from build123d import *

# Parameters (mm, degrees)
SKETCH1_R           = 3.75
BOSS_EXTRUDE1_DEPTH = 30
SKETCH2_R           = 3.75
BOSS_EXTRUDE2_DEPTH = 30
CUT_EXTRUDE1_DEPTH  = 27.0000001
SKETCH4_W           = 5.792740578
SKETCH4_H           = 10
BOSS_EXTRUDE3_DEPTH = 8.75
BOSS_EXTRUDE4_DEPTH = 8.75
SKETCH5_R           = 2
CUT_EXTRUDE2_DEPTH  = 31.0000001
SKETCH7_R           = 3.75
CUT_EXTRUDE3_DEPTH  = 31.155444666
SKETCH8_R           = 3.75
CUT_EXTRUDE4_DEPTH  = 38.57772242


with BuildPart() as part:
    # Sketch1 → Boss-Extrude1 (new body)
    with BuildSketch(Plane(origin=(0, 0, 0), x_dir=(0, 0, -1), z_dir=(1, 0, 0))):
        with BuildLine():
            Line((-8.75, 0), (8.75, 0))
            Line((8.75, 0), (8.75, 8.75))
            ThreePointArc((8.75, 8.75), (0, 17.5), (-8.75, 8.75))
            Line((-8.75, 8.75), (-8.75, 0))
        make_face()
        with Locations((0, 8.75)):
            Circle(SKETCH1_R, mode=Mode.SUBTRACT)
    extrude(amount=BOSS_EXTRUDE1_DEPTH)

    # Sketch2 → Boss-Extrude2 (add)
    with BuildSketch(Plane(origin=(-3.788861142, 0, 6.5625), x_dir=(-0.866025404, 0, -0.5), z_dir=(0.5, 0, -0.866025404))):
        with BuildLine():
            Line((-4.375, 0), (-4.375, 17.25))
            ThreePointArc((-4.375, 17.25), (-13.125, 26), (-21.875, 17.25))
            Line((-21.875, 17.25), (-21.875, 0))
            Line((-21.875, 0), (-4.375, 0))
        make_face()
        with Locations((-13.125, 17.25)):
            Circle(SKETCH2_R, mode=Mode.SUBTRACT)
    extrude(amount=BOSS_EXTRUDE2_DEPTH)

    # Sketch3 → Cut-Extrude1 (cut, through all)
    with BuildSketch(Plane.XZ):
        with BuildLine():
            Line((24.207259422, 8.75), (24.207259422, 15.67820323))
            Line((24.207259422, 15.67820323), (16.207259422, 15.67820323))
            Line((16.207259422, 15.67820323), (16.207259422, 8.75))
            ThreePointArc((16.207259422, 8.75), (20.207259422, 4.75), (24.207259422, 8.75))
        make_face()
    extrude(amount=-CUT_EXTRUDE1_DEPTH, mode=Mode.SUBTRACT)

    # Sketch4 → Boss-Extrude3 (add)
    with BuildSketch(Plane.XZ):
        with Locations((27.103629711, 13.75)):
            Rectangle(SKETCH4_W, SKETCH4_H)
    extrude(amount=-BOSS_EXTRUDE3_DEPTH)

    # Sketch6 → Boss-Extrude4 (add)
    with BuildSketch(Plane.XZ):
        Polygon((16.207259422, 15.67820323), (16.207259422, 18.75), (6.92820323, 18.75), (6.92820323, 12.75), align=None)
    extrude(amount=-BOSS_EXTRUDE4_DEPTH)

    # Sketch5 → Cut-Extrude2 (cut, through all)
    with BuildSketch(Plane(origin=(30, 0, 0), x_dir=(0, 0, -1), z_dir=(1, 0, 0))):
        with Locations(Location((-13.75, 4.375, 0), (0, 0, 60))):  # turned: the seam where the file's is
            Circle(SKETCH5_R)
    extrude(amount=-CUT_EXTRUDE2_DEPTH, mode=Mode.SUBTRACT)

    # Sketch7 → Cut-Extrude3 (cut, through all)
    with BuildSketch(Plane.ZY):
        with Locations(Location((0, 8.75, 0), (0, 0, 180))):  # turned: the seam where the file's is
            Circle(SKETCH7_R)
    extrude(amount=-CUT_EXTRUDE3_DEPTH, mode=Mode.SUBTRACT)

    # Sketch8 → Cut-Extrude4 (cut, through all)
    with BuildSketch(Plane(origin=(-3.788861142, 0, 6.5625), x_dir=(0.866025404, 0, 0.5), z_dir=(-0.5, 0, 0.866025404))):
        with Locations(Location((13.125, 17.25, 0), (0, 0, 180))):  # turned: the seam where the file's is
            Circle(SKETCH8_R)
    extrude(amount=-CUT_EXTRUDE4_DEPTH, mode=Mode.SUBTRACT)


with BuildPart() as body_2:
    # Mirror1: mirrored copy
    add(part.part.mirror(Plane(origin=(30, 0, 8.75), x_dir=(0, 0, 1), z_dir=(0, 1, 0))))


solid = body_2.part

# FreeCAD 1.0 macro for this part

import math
import FreeCAD as App
import Part
import Sketcher
Q = App.Units.Quantity

doc = App.newDocument("Part")
params = doc.addObject("Spreadsheet::Sheet", "Params")
for row, (alias, value) in enumerate([
    ("sketch1_diameter", "7.5 mm"),
    ("sketch1_radius", "8.75 mm"),
    ("sketch1_width", "8.75 mm"),
    ("pad1_length", "30 mm"),
    ("sketch2_diameter", "7.5 mm"),
    ("sketch2_radius", "8.75 mm"),
    ("sketch2_height", "17.25 mm"),
    ("pad2_length", "30 mm"),
    ("sketch3_radius", "4 mm"),
    ("sketch4_height", "10 mm"),
    ("pad3_length", "8.75 mm"),
    ("sketch5_height", "6 mm"),
    ("pad4_length", "8.75 mm"),
    ("sketch6_diameter", "4 mm"),
    ("sketch7_diameter", "7.5 mm"),
    ("sketch8_diameter", "7.5 mm"),
], start=1):
    params.set(f"A{row}", alias)
    params.set(f"B{row}", "=" + value)
    params.setAlias(f"B{row}", alias)

body = doc.addObject("PartDesign::Body", "Body")

sketch1 = body.newObject("Sketcher::SketchObject", "Sketch")
sketch1.AttachmentSupport = (doc.getObject("YZ_Plane"), [""])
sketch1.MapMode = "FlatFace"
sketch1.addGeometry(Part.LineSegment(App.Vector(0, 8.75, 0), App.Vector(0, -8.75, 0)), False)
sketch1.addGeometry(Part.LineSegment(App.Vector(0, -8.75, 0), App.Vector(8.75, -8.75, 0)), False)
sketch1.addGeometry(Part.ArcOfCircle(Part.Circle(App.Vector(8.75, 0, 0), App.Vector(0, 0, 1), 8.75), math.radians(-90), math.radians(90)), False)
sketch1.addGeometry(Part.LineSegment(App.Vector(8.75, 8.75, 0), App.Vector(0, 8.75, 0)), False)
sketch1.addGeometry(Part.Circle(App.Vector(8.75, 0, 0), App.Vector(0, 0, 1), 3.75), False)
sketch1.addConstraint(Sketcher.Constraint("Coincident", 0, 2, 1, 1))
sketch1.addConstraint(Sketcher.Constraint("Tangent", 1, 2, 2, 1))
sketch1.addConstraint(Sketcher.Constraint("Tangent", 2, 2, 3, 1))
sketch1.addConstraint(Sketcher.Constraint("Coincident", 3, 2, 0, 1))
sketch1.addConstraint(Sketcher.Constraint("Vertical", 0))
sketch1.addConstraint(Sketcher.Constraint("Horizontal", 1))
sketch1.addConstraint(Sketcher.Constraint("Horizontal", 3))
sketch1.addConstraint(Sketcher.Constraint("Coincident", 4, 3, 2, 3))
sketch1.addConstraint(Sketcher.Constraint("Symmetric", 0, 2, 3, 2, -1, 1))
sketch1.addConstraint(Sketcher.Constraint("Diameter", 4, Q("7.5 mm")))
sketch1.addConstraint(Sketcher.Constraint("Radius", 2, Q("8.75 mm")))
sketch1.addConstraint(Sketcher.Constraint("DistanceX", 1, 1, 1, 2, Q("8.75 mm")))
sketch1.setExpression("Constraints[9]", "Params.sketch1_diameter")
sketch1.setExpression("Constraints[10]", "Params.sketch1_radius")
sketch1.setExpression("Constraints[11]", "Params.sketch1_width")
pad1 = body.newObject("PartDesign::Pad", "Pad")
pad1.Profile = sketch1
pad1.setExpression("Length", "Params.pad1_length")

sketch2 = body.newObject("Sketcher::SketchObject", "Sketch001")
sketch2.Placement = App.Placement(App.Vector(-3.788861, 0, 6.5625), App.Rotation(App.Vector(-0.866025404, 0, -0.5), App.Vector(0, 1, 0), App.Vector(0.5, 0, -0.866025404), "ZXY"))
sketch2.addGeometry(Part.LineSegment(App.Vector(-4.375, 0, 0), App.Vector(-4.375, 17.25, 0)), False)
sketch2.addGeometry(Part.ArcOfCircle(Part.Circle(App.Vector(-13.125, 17.25, 0), App.Vector(0, 0, 1), 8.75), math.radians(0), math.radians(180)), False)
sketch2.addGeometry(Part.LineSegment(App.Vector(-21.875, 17.25, 0), App.Vector(-21.875, 0, 0)), False)
sketch2.addGeometry(Part.LineSegment(App.Vector(-21.875, 0, 0), App.Vector(-4.375, 0, 0)), False)
sketch2.addGeometry(Part.Circle(App.Vector(-13.125, 17.25, 0), App.Vector(0, 0, 1), 3.75), False)
sketch2.addConstraint(Sketcher.Constraint("Tangent", 0, 2, 1, 1))
sketch2.addConstraint(Sketcher.Constraint("Tangent", 1, 2, 2, 1))
sketch2.addConstraint(Sketcher.Constraint("Coincident", 2, 2, 3, 1))
sketch2.addConstraint(Sketcher.Constraint("Coincident", 3, 2, 0, 1))
sketch2.addConstraint(Sketcher.Constraint("Vertical", 0))
sketch2.addConstraint(Sketcher.Constraint("Vertical", 2))
sketch2.addConstraint(Sketcher.Constraint("Horizontal", 3))
sketch2.addConstraint(Sketcher.Constraint("Coincident", 4, 3, 1, 3))
sketch2.addConstraint(Sketcher.Constraint("PointOnObject", 2, 2, -1))
sketch2.addConstraint(Sketcher.Constraint("Diameter", 4, Q("7.5 mm")))
sketch2.addConstraint(Sketcher.Constraint("Radius", 1, Q("8.75 mm")))
sketch2.addConstraint(Sketcher.Constraint("DistanceY", 0, 1, 0, 2, Q("17.25 mm")))
sketch2.addConstraint(Sketcher.Constraint("DistanceX", 1, 3, -1, 1, Q("13.125 mm")))
sketch2.setExpression("Constraints[9]", "Params.sketch2_diameter")
sketch2.setExpression("Constraints[10]", "Params.sketch2_radius")
sketch2.setExpression("Constraints[11]", "Params.sketch2_height")
pad2 = body.newObject("PartDesign::Pad", "Pad001")
pad2.Profile = sketch2
pad2.setExpression("Length", "Params.pad2_length")

sketch3 = body.newObject("Sketcher::SketchObject", "Sketch002")
sketch3.AttachmentSupport = (doc.getObject("XZ_Plane"), [""])
sketch3.MapMode = "FlatFace"
sketch3.addGeometry(Part.LineSegment(App.Vector(24.207259, 8.75, 0), App.Vector(24.207259, 15.678203, 0)), False)
sketch3.addGeometry(Part.LineSegment(App.Vector(24.207259, 15.678203, 0), App.Vector(16.207259, 15.678203, 0)), False)
sketch3.addGeometry(Part.LineSegment(App.Vector(16.207259, 15.678203, 0), App.Vector(16.207259, 8.75, 0)), False)
sketch3.addGeometry(Part.ArcOfCircle(Part.Circle(App.Vector(20.207259, 8.75, 0), App.Vector(0, 0, 1), 4), math.radians(180), math.radians(360)), False)
sketch3.addConstraint(Sketcher.Constraint("Coincident", 0, 2, 1, 1))
sketch3.addConstraint(Sketcher.Constraint("Coincident", 1, 2, 2, 1))
sketch3.addConstraint(Sketcher.Constraint("Tangent", 2, 2, 3, 1))
sketch3.addConstraint(Sketcher.Constraint("Tangent", 3, 2, 0, 1))
sketch3.addConstraint(Sketcher.Constraint("Vertical", 0))
sketch3.addConstraint(Sketcher.Constraint("Horizontal", 1))
sketch3.addConstraint(Sketcher.Constraint("Vertical", 2))
sketch3.addConstraint(Sketcher.Constraint("Radius", 3, Q("4 mm")))
sketch3.addConstraint(Sketcher.Constraint("DistanceY", -1, 1, 3, 3, Q("8.75 mm")))
sketch3.addConstraint(Sketcher.Constraint("DistanceY", 0, 1, 0, 2, Q("6.928203 mm")))
sketch3.addConstraint(Sketcher.Constraint("DistanceX", -1, 1, 3, 3, Q("20.207259 mm")))
sketch3.setExpression("Constraints[7]", "Params.sketch3_radius")
pocket1 = body.newObject("PartDesign::Pocket", "Pocket")
pocket1.Profile = sketch3
pocket1.Type = "ThroughAll"

sketch4 = body.newObject("Sketcher::SketchObject", "Sketch003")
sketch4.AttachmentSupport = (doc.getObject("XZ_Plane"), [""])
sketch4.MapMode = "FlatFace"
sketch4.addGeometry(Part.LineSegment(App.Vector(24.207259, 18.75, 0), App.Vector(24.207259, 8.75, 0)), False)
sketch4.addGeometry(Part.LineSegment(App.Vector(24.207259, 8.75, 0), App.Vector(30, 8.75, 0)), False)
sketch4.addGeometry(Part.LineSegment(App.Vector(30, 8.75, 0), App.Vector(30, 18.75, 0)), False)
sketch4.addGeometry(Part.LineSegment(App.Vector(30, 18.75, 0), App.Vector(24.207259, 18.75, 0)), False)
sketch4.addConstraint(Sketcher.Constraint("Coincident", 0, 2, 1, 1))
sketch4.addConstraint(Sketcher.Constraint("Coincident", 1, 2, 2, 1))
sketch4.addConstraint(Sketcher.Constraint("Coincident", 2, 2, 3, 1))
sketch4.addConstraint(Sketcher.Constraint("Coincident", 3, 2, 0, 1))
sketch4.addConstraint(Sketcher.Constraint("Vertical", 0))
sketch4.addConstraint(Sketcher.Constraint("Horizontal", 1))
sketch4.addConstraint(Sketcher.Constraint("Vertical", 2))
sketch4.addConstraint(Sketcher.Constraint("Horizontal", 3))
sketch4.addConstraint(Sketcher.Constraint("DistanceY", 0, 2, 0, 1, Q("10 mm")))
sketch4.addConstraint(Sketcher.Constraint("DistanceX", -1, 1, 1, 2, Q("30 mm")))
sketch4.addConstraint(Sketcher.Constraint("DistanceY", -1, 1, 0, 2, Q("8.75 mm")))
sketch4.addConstraint(Sketcher.Constraint("DistanceX", 1, 1, 1, 2, Q("5.792741 mm")))
sketch4.setExpression("Constraints[8]", "Params.sketch4_height")
pad3 = body.newObject("PartDesign::Pad", "Pad002")
pad3.Profile = sketch4
pad3.setExpression("Length", "Params.pad3_length")
pad3.Reversed = True

sketch5 = body.newObject("Sketcher::SketchObject", "Sketch004")
sketch5.AttachmentSupport = (doc.getObject("XZ_Plane"), [""])
sketch5.MapMode = "FlatFace"
sketch5.addGeometry(Part.LineSegment(App.Vector(16.207259, 15.678203, 0), App.Vector(16.207259, 18.75, 0)), False)
sketch5.addGeometry(Part.LineSegment(App.Vector(16.207259, 18.75, 0), App.Vector(6.928203, 18.75, 0)), False)
sketch5.addGeometry(Part.LineSegment(App.Vector(6.928203, 18.75, 0), App.Vector(6.928203, 12.75, 0)), False)
sketch5.addGeometry(Part.LineSegment(App.Vector(6.928203, 12.75, 0), App.Vector(16.207259, 15.678203, 0)), False)
sketch5.addConstraint(Sketcher.Constraint("Coincident", 0, 2, 1, 1))
sketch5.addConstraint(Sketcher.Constraint("Coincident", 1, 2, 2, 1))
sketch5.addConstraint(Sketcher.Constraint("Coincident", 2, 2, 3, 1))
sketch5.addConstraint(Sketcher.Constraint("Coincident", 3, 2, 0, 1))
sketch5.addConstraint(Sketcher.Constraint("Vertical", 0))
sketch5.addConstraint(Sketcher.Constraint("Horizontal", 1))
sketch5.addConstraint(Sketcher.Constraint("Vertical", 2))
sketch5.addConstraint(Sketcher.Constraint("DistanceY", 2, 2, 2, 1, Q("6 mm")))
sketch5.addConstraint(Sketcher.Constraint("DistanceY", -1, 1, 0, 2, Q("18.75 mm")))
sketch5.addConstraint(Sketcher.Constraint("Distance", 3, Q("9.730121 mm")))
sketch5.addConstraint(Sketcher.Constraint("DistanceX", 1, 2, 1, 1, Q("9.279056 mm")))
sketch5.addConstraint(Sketcher.Constraint("DistanceX", -1, 1, 0, 2, Q("16.207259 mm")))
sketch5.setExpression("Constraints[7]", "Params.sketch5_height")
pad4 = body.newObject("PartDesign::Pad", "Pad003")
pad4.Profile = sketch5
pad4.setExpression("Length", "Params.pad4_length")
pad4.Reversed = True

sketch6 = body.newObject("Sketcher::SketchObject", "Sketch005")
sketch6.AttachmentSupport = (doc.getObject("YZ_Plane"), [""])
sketch6.MapMode = "FlatFace"
sketch6.AttachmentOffset = App.Placement(App.Vector(0, 0, 30), App.Rotation())
sketch6.addGeometry(Part.Circle(App.Vector(4.375, 13.75, 0), App.Vector(0, 0, 1), 2), False)
sketch6.addConstraint(Sketcher.Constraint("Diameter", 0, Q("4 mm")))
sketch6.addConstraint(Sketcher.Constraint("DistanceY", -1, 1, 0, 3, Q("13.75 mm")))
sketch6.addConstraint(Sketcher.Constraint("DistanceX", -1, 1, 0, 3, Q("4.375 mm")))
sketch6.setExpression("Constraints[0]", "Params.sketch6_diameter")
pocket2 = body.newObject("PartDesign::Pocket", "Pocket001")
pocket2.Profile = sketch6
pocket2.Type = "ThroughAll"

sketch7 = body.newObject("Sketcher::SketchObject", "Sketch006")
sketch7.AttachmentSupport = (doc.getObject("YZ_Plane"), [""])
sketch7.MapMode = "FlatFace"
sketch7.addGeometry(Part.Circle(App.Vector(8.75, 0, 0), App.Vector(0, 0, 1), 3.75), False)
sketch7.addConstraint(Sketcher.Constraint("PointOnObject", 0, 3, -1))
sketch7.addConstraint(Sketcher.Constraint("Diameter", 0, Q("7.5 mm")))
sketch7.addConstraint(Sketcher.Constraint("DistanceX", -1, 1, 0, 3, Q("8.75 mm")))
sketch7.setExpression("Constraints[1]", "Params.sketch7_diameter")
pocket3 = body.newObject("PartDesign::Pocket", "Pocket002")
pocket3.Profile = sketch7
pocket3.Type = "ThroughAll"
pocket3.Reversed = True

sketch8 = body.newObject("Sketcher::SketchObject", "Sketch007")
sketch8.Placement = App.Placement(App.Vector(-3.788861, 0, 6.5625), App.Rotation(App.Vector(0.866025404, 0, 0.5), App.Vector(0, 1, 0), App.Vector(-0.5, 0, 0.866025404), "ZXY"))
sketch8.addGeometry(Part.Circle(App.Vector(13.125, 17.25, 0), App.Vector(0, 0, 1), 3.75), False)
sketch8.addConstraint(Sketcher.Constraint("Diameter", 0, Q("7.5 mm")))
sketch8.addConstraint(Sketcher.Constraint("DistanceY", -1, 1, 0, 3, Q("17.25 mm")))
sketch8.addConstraint(Sketcher.Constraint("DistanceX", -1, 1, 0, 3, Q("13.125 mm")))
sketch8.setExpression("Constraints[0]", "Params.sketch8_diameter")
pocket4 = body.newObject("PartDesign::Pocket", "Pocket003")
pocket4.Profile = sketch8
pocket4.Type = "ThroughAll"
body2 = doc.addObject("PartDesign::Body", "Body001")
doc.recompute()

mirroring = doc.addObject("Part::Mirroring", "Mirroring")
mirroring.Source = body
mirroring.Base = App.Vector(30, 0, 8.75)
mirroring.Normal = App.Vector(0, 1, 0)
body2.BaseFeature = mirroring
doc.recompute()
body.Visibility = False
mirroring.Visibility = False

doc.recompute()
